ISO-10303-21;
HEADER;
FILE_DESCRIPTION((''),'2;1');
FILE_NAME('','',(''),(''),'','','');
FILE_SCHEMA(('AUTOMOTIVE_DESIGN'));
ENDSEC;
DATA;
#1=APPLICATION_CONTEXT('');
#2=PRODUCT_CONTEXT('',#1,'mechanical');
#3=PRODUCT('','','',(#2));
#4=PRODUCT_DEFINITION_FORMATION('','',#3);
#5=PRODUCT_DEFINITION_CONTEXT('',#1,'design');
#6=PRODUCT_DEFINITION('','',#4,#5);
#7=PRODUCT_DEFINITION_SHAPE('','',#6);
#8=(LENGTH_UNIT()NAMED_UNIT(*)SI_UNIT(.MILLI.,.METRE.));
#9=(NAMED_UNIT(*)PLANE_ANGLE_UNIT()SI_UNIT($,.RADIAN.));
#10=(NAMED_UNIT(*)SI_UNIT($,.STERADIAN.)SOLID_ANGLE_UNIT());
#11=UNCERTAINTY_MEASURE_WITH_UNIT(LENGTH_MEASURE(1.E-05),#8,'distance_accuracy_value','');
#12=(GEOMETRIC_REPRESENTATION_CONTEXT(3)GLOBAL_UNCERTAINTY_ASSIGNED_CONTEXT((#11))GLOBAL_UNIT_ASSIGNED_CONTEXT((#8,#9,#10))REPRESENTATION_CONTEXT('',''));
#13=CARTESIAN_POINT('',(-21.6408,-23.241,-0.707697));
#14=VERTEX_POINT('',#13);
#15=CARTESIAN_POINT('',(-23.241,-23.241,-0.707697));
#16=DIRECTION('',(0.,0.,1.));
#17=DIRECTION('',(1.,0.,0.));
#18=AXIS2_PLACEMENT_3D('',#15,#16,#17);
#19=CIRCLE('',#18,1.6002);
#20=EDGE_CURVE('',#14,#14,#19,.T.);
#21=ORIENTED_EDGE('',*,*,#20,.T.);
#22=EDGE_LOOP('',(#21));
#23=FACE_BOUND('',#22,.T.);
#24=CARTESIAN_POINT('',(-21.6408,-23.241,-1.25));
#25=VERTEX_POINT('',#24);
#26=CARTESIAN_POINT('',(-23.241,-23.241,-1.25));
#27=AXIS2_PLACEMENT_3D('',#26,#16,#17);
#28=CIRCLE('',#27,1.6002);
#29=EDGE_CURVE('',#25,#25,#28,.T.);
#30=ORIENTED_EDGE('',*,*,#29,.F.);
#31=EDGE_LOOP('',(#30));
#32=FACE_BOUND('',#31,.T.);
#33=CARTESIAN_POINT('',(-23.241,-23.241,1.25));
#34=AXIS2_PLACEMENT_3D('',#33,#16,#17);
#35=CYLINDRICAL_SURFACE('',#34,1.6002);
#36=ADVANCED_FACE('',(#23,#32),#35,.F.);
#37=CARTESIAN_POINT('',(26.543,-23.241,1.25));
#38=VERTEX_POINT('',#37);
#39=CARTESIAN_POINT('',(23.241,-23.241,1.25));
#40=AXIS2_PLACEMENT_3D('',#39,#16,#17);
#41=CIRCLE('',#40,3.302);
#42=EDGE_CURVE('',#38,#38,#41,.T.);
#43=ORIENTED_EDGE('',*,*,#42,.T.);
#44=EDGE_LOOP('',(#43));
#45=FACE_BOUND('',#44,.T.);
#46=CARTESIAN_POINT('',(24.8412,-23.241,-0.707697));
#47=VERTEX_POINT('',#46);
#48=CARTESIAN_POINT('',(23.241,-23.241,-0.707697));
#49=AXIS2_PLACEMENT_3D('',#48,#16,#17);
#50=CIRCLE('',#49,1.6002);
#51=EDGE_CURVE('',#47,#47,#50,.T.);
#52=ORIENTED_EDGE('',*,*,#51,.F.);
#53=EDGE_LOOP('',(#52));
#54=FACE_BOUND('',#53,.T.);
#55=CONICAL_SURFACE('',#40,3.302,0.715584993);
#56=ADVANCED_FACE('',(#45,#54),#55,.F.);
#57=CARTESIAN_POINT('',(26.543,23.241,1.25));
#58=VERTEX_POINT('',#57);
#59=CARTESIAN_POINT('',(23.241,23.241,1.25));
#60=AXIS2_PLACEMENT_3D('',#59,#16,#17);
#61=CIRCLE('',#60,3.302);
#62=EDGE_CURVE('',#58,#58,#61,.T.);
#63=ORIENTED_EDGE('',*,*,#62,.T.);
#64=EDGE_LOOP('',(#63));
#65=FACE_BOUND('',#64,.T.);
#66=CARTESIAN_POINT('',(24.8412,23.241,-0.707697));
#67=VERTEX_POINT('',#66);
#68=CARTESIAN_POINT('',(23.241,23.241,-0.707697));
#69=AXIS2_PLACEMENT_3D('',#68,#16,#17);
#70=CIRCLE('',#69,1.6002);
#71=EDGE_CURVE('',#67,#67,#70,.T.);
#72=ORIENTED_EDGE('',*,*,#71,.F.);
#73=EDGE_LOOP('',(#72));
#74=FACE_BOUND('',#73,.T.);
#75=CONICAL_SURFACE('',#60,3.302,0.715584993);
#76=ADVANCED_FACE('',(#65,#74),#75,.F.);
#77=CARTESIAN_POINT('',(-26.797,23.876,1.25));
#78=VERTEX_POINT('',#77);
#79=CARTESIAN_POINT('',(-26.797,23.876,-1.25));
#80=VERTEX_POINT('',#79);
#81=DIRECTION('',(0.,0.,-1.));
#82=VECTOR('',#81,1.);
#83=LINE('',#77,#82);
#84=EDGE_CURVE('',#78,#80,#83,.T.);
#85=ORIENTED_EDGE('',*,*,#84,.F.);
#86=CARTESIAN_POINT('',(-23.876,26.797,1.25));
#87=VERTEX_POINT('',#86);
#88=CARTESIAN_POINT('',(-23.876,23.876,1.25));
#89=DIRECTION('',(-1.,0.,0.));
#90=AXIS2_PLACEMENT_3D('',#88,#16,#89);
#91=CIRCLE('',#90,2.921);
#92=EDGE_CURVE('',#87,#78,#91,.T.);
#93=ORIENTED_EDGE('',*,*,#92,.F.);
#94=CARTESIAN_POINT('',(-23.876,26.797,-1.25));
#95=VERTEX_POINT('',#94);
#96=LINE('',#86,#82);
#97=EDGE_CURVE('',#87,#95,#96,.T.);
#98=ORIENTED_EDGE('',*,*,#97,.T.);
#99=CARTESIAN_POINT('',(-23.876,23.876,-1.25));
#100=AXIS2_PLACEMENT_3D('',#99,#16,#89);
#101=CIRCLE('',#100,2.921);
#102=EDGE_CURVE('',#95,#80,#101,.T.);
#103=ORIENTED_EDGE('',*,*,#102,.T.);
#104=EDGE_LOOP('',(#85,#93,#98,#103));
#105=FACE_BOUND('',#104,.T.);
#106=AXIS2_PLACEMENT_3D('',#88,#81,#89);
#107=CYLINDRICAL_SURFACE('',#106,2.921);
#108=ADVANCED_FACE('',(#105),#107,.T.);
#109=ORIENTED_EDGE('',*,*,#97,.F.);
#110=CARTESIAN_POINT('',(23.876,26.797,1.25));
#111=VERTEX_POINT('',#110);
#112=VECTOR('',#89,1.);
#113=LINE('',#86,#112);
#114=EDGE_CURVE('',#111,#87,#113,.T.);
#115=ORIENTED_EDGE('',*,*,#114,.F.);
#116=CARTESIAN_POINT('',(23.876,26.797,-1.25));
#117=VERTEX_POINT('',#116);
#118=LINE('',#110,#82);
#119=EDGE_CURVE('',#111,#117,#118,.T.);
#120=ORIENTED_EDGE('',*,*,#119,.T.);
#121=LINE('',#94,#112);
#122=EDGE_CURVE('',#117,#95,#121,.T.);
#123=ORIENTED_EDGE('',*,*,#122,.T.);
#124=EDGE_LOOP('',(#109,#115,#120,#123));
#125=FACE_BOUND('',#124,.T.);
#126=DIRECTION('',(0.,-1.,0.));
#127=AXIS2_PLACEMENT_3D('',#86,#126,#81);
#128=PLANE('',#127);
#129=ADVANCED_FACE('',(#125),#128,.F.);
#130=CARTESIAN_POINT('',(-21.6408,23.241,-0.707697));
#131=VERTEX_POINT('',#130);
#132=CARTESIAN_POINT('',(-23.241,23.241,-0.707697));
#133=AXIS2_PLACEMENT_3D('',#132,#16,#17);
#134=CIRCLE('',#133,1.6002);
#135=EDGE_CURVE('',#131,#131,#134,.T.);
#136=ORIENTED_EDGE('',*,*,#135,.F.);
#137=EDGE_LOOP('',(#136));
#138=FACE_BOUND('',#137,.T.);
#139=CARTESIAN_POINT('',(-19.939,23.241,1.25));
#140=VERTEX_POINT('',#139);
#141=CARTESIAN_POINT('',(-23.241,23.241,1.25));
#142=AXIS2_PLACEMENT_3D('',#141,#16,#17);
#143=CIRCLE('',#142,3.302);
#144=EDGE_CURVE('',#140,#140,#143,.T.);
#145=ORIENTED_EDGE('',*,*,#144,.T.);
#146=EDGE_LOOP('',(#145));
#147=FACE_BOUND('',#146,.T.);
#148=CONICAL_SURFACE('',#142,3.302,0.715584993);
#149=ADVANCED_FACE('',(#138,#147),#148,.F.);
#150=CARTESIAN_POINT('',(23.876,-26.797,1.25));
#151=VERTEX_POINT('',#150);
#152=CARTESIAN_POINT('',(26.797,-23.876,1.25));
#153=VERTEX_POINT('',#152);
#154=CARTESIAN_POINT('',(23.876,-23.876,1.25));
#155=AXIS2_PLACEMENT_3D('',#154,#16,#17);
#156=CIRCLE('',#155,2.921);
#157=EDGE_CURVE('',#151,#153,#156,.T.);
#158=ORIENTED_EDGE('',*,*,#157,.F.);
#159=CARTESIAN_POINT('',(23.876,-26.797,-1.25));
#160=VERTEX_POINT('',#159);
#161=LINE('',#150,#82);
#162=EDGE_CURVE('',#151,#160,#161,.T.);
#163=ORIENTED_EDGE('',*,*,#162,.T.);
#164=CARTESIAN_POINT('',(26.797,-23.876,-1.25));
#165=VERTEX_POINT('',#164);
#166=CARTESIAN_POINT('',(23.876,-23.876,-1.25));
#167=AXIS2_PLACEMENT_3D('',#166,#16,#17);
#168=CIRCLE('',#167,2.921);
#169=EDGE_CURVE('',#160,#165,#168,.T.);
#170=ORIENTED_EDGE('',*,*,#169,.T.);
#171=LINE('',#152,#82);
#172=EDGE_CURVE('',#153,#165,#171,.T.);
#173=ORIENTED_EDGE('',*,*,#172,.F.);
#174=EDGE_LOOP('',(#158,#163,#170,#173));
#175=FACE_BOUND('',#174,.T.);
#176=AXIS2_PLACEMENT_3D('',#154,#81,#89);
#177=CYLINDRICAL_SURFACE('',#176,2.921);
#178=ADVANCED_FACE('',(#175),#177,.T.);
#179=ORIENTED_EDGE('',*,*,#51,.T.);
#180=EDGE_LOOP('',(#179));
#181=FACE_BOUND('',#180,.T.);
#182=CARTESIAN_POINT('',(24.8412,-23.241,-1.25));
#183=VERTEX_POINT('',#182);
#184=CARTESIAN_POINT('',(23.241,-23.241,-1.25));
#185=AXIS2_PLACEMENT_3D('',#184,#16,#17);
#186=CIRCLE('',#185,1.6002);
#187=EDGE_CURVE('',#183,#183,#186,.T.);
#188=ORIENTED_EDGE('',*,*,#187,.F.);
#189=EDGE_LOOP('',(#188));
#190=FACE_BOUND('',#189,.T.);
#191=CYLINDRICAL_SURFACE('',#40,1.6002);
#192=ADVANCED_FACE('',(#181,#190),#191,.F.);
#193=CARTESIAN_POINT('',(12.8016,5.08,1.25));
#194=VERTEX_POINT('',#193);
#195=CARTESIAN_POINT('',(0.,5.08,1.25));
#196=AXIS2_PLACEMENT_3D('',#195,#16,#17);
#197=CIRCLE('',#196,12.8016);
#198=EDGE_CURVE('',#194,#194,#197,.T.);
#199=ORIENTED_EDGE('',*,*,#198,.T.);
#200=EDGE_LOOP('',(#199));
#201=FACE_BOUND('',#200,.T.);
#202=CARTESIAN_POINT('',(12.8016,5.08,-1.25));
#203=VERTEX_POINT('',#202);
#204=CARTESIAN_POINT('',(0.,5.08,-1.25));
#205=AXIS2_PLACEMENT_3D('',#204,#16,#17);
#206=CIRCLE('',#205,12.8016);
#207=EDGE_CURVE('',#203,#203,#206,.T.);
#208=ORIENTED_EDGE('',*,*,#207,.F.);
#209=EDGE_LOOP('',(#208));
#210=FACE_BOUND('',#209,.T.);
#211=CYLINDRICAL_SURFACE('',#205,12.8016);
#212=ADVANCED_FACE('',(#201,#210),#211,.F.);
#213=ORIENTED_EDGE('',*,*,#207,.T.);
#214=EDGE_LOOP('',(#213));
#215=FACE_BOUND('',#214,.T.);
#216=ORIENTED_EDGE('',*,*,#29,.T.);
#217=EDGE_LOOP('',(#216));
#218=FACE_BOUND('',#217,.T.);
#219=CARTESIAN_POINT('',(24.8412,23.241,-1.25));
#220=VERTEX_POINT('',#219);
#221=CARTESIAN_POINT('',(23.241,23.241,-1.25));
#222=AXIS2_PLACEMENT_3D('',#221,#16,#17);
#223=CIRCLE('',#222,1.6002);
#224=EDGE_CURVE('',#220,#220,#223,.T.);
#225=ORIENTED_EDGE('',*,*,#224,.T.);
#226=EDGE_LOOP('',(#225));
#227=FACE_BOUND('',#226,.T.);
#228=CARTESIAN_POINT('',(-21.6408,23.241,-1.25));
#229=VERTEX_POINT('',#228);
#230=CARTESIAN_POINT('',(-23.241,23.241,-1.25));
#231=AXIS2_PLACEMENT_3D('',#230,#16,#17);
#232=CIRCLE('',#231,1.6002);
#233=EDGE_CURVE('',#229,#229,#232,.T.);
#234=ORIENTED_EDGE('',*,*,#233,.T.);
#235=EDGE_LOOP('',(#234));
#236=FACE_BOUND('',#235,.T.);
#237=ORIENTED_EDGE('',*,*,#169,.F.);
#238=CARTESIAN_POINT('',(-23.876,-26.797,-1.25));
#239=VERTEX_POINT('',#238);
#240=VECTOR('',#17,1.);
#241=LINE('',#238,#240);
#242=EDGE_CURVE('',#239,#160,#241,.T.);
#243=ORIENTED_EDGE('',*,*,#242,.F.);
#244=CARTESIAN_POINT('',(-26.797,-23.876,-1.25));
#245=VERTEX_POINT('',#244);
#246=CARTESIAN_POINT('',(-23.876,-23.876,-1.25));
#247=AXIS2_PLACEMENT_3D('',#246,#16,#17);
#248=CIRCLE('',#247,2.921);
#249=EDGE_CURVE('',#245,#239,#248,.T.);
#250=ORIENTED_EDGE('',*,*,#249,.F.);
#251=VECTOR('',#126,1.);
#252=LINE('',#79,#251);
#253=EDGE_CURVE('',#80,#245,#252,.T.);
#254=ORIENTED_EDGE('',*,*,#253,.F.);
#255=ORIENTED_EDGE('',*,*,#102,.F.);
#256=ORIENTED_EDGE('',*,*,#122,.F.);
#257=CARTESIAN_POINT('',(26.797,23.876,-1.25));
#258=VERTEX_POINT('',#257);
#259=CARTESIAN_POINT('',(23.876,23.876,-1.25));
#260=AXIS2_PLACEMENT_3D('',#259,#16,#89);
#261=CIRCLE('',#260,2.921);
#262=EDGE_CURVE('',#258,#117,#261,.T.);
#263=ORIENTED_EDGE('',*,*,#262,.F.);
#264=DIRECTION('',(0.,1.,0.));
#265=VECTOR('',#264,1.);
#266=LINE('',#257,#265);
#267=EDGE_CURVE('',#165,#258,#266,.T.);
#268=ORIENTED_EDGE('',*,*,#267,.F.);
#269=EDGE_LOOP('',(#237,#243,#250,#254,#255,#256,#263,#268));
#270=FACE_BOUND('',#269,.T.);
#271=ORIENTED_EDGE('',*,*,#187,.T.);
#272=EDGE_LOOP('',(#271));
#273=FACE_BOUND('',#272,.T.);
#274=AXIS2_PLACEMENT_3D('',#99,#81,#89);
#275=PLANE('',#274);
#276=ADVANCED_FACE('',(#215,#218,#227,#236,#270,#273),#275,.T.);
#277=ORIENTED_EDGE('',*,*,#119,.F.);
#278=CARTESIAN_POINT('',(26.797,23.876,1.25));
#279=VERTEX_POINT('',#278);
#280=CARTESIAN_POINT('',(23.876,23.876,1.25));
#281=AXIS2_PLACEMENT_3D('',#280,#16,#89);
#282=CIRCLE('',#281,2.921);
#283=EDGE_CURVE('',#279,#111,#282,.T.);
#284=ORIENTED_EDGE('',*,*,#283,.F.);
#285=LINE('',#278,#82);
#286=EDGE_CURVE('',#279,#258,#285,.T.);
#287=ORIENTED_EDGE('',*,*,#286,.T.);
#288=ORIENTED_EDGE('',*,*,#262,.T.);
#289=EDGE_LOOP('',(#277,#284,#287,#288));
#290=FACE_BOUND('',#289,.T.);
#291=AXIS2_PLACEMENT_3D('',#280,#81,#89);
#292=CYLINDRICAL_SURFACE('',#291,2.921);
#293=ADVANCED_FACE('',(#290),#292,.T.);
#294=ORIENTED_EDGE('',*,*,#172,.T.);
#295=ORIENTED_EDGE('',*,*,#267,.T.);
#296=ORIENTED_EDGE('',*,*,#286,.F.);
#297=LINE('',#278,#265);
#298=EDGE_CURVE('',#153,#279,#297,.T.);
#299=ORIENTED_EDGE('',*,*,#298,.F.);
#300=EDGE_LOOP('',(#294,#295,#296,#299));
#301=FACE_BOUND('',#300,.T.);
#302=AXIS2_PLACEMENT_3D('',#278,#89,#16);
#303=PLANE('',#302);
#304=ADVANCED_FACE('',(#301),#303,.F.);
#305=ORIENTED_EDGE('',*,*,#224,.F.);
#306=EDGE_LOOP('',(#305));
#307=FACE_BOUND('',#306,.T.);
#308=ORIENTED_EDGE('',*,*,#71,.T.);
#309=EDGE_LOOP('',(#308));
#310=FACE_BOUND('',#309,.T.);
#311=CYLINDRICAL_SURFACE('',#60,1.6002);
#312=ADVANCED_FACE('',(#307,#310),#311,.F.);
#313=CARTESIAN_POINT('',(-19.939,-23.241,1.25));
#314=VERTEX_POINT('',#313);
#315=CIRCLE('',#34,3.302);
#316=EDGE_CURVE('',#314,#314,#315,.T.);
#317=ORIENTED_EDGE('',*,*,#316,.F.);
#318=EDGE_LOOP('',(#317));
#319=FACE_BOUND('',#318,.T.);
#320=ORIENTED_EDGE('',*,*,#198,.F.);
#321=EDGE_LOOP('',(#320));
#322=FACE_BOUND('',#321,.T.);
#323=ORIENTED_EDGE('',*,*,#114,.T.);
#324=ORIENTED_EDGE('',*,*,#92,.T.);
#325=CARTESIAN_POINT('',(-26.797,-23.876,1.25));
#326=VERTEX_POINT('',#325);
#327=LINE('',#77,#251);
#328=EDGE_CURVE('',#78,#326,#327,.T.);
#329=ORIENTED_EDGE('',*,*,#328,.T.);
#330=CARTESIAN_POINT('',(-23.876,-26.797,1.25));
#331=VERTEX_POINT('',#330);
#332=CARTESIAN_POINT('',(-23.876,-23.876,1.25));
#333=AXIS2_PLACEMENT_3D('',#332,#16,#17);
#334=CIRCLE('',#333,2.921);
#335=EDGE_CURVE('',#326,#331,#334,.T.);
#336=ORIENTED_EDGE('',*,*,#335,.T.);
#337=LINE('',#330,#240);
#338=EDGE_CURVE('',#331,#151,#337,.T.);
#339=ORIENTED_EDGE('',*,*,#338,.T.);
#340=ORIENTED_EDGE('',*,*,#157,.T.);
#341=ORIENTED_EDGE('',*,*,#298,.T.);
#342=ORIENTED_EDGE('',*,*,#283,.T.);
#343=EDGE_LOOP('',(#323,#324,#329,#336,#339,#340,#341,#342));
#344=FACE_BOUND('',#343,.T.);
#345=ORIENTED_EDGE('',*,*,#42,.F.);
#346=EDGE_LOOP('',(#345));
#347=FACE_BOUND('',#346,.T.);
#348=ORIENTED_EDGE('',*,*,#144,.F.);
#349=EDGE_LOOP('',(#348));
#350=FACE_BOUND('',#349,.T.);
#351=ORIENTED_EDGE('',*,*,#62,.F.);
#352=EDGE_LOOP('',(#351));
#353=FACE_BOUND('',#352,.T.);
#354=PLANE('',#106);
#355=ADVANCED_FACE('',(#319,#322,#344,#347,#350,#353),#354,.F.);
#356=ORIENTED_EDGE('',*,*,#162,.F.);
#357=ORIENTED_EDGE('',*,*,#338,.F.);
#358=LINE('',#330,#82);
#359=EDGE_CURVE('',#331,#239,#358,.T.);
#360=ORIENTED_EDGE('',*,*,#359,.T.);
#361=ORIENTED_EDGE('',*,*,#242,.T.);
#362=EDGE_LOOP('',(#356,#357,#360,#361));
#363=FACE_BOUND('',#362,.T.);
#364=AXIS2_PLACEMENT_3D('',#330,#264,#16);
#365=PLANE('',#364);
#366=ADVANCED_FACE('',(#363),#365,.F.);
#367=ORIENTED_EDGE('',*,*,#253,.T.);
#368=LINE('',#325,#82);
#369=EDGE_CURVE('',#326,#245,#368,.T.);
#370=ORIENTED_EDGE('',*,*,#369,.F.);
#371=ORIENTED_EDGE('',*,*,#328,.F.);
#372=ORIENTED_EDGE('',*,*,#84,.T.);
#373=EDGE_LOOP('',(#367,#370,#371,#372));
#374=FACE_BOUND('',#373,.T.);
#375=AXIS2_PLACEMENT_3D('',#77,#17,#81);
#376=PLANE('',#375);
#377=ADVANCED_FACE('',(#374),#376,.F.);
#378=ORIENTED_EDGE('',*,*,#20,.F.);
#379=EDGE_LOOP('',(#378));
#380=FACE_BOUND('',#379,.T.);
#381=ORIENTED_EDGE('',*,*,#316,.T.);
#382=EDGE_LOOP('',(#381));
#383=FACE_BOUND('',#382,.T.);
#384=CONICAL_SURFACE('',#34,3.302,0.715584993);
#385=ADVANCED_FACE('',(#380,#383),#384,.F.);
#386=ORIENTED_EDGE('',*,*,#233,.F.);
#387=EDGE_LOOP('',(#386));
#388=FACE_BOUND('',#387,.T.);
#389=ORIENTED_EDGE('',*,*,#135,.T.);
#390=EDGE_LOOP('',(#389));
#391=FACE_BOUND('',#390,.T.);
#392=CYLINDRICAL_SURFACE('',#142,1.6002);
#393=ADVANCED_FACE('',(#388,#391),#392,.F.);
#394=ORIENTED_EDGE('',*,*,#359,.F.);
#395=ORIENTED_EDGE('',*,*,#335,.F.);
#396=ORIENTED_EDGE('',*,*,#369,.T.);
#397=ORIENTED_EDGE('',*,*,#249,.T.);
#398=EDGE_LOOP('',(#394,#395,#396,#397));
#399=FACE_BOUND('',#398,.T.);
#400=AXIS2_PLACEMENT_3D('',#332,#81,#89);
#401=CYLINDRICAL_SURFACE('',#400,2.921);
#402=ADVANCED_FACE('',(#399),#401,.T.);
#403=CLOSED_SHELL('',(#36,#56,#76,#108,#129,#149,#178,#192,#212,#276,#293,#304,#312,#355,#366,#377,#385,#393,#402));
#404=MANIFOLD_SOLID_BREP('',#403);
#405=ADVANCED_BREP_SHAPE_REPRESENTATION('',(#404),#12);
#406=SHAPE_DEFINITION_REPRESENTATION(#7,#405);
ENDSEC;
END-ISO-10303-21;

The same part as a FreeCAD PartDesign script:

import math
import FreeCAD as App
import Part
import Sketcher
Q = App.Units.Quantity

doc = App.newDocument("Part")
body = doc.addObject("PartDesign::Body", "Body")

# Sketch on XY plane
sketch1 = body.newObject("Sketcher::SketchObject", "Sketch")
sketch1.AttachmentSupport = (doc.getObject("XY_Plane"), [""])
sketch1.MapMode = "FlatFace"
sketch1.addGeometry(Part.LineSegment(App.Vector(23.9, 26.8, 0), App.Vector(-23.9, 26.8, 0)), False)
sketch1.addGeometry(Part.ArcOfCircle(Part.Circle(App.Vector(-23.9, 23.9, 0), App.Vector(0, 0, 1), 2.9), math.radians(90), math.radians(180)), False)
sketch1.addGeometry(Part.LineSegment(App.Vector(-26.8, 23.9, 0), App.Vector(-26.8, -23.9, 0)), False)
sketch1.addGeometry(Part.ArcOfCircle(Part.Circle(App.Vector(-23.9, -23.9, 0), App.Vector(0, 0, 1), 2.9), math.radians(180), math.radians(270)), False)
sketch1.addGeometry(Part.LineSegment(App.Vector(-23.9, -26.8, 0), App.Vector(23.9, -26.8, 0)), False)
sketch1.addGeometry(Part.ArcOfCircle(Part.Circle(App.Vector(23.9, -23.9, 0), App.Vector(0, 0, 1), 2.9), math.radians(-90), math.radians(0)), False)
sketch1.addGeometry(Part.LineSegment(App.Vector(26.8, -23.9, 0), App.Vector(26.8, 23.9, 0)), False)
sketch1.addGeometry(Part.ArcOfCircle(Part.Circle(App.Vector(23.9, 23.9, 0), App.Vector(0, 0, 1), 2.9), math.radians(0), math.radians(90)), False)
sketch1.addConstraint(Sketcher.Constraint("Tangent", 0, 2, 1, 1))
sketch1.addConstraint(Sketcher.Constraint("Tangent", 1, 2, 2, 1))
sketch1.addConstraint(Sketcher.Constraint("Tangent", 2, 2, 3, 1))
sketch1.addConstraint(Sketcher.Constraint("Tangent", 3, 2, 4, 1))
sketch1.addConstraint(Sketcher.Constraint("Tangent", 4, 2, 5, 1))
sketch1.addConstraint(Sketcher.Constraint("Tangent", 5, 2, 6, 1))
sketch1.addConstraint(Sketcher.Constraint("Tangent", 6, 2, 7, 1))
sketch1.addConstraint(Sketcher.Constraint("Tangent", 7, 2, 0, 1))
sketch1.addConstraint(Sketcher.Constraint("Horizontal", 0))
sketch1.addConstraint(Sketcher.Constraint("Vertical", 2))
sketch1.addConstraint(Sketcher.Constraint("Horizontal", 4))
sketch1.addConstraint(Sketcher.Constraint("Vertical", 6))
sketch1.addConstraint(Sketcher.Constraint("Equal", 1, 3))
sketch1.addConstraint(Sketcher.Constraint("Equal", 3, 5))
sketch1.addConstraint(Sketcher.Constraint("Equal", 5, 7))
sketch1.addConstraint(Sketcher.Constraint("Symmetric", 1, 3, 5, 3, -1, 1))
sketch1.addConstraint(Sketcher.Constraint("Equal", 4, 2))
sketch1.addConstraint(Sketcher.Constraint("Radius", 1, Q("0.115 in")))
sketch1.addConstraint(Sketcher.Constraint("DistanceX", 0, 2, 0, 1, Q("1.88 in")))
pad1 = body.newObject("PartDesign::Pad", "Pad")
pad1.Profile = sketch1
pad1.Length = 2.5
pad1.Midplane = True

# Sketch on YZ plane
sketch2 = body.newObject("Sketcher::SketchObject", "Sketch001")
sketch2.AttachmentSupport = (doc.getObject("YZ_Plane"), [""])
sketch2.MapMode = "FlatFace"
sketch2.AttachmentOffset = App.Placement(App.Vector(0, 0, -0.915 * 25.4), App.Rotation())
sketch2.addGeometry(Part.LineSegment(App.Vector(23.2, -1.2, 0), App.Vector(23.2, 1.2, 0)), False)
sketch2.addGeometry(Part.LineSegment(App.Vector(23.2, 1.2, 0), App.Vector(19.9, 1.2, 0)), False)
sketch2.addGeometry(Part.LineSegment(App.Vector(19.9, 1.2, 0), App.Vector(21.6, -0.7, 0)), False)
sketch2.addGeometry(Part.LineSegment(App.Vector(21.6, -0.7, 0), App.Vector(21.6, -1.2, 0)), False)
sketch2.addGeometry(Part.LineSegment(App.Vector(21.6, -1.2, 0), App.Vector(23.2, -1.2, 0)), False)
sketch2.addGeometry(Part.LineSegment(App.Vector(23.2, 1.2, 0), App.Vector(23.2, -1.2, 0)), True)  # axis
sketch2.addConstraint(Sketcher.Constraint("Coincident", 0, 2, 1, 1))
sketch2.addConstraint(Sketcher.Constraint("Coincident", 1, 2, 2, 1))
sketch2.addConstraint(Sketcher.Constraint("Coincident", 2, 2, 3, 1))
sketch2.addConstraint(Sketcher.Constraint("Coincident", 3, 2, 4, 1))
sketch2.addConstraint(Sketcher.Constraint("Coincident", 4, 2, 0, 1))
sketch2.addConstraint(Sketcher.Constraint("Vertical", 0))
sketch2.addConstraint(Sketcher.Constraint("Horizontal", 1))
sketch2.addConstraint(Sketcher.Constraint("Vertical", 3))
sketch2.addConstraint(Sketcher.Constraint("Horizontal", 4))
sketch2.addConstraint(Sketcher.Constraint("Vertical", 5))
sketch2.addConstraint(Sketcher.Constraint("Coincident", 5, 1, 0, 2))
sketch2.addConstraint(Sketcher.Constraint("Horizontal", 3, 2, 5, 2))
sketch2.addConstraint(Sketcher.Constraint("Angle", 2, Q("-49 deg")))
sketch2.addConstraint(Sketcher.Constraint("DistanceX", 1, 2, 1, 1, Q("0.13 in")))
sketch2.addConstraint(Sketcher.Constraint("DistanceX", 4, 1, 4, 2, Q("0.063 in")))
sketch2.addConstraint(Sketcher.Constraint("DistanceX", -1, 1, 0, 2, Q("0.915 in")))
sketch2.addConstraint(Sketcher.Constraint("DistanceY", 0, 1, 0, 2, Q("2.5 mm")))
sketch2.addConstraint(Sketcher.Constraint("DistanceY", -1, 1, 0, 2, Q("1.25 mm")))
groove = body.newObject("PartDesign::Groove", "Groove")
groove.Profile = sketch2
groove.ReferenceAxis = (sketch2, ["Axis0"])
groove.Angle = 360
doc.recompute()

datumline = body.newObject("PartDesign::Line", "DatumLine")
datumline.Placement = App.Placement(App.Vector(0, 0, 0), App.Rotation(App.Vector(0, 0, 1), App.Vector(0.707106781, -0.707106781, 0)))
linearpattern = body.newObject("PartDesign::LinearPattern", "LinearPattern")
linearpattern.Originals = [groove]
linearpattern.Direction = (datumline, [""])
linearpattern.Mode = "offset"
linearpattern.Offset = 65.735475
linearpattern.Occurrences = 2
body.Tip = linearpattern
doc.recompute()

linearpattern2 = body.newObject("PartDesign::LinearPattern", "LinearPattern001")
linearpattern2.Originals = [groove]
linearpattern2.Direction = (doc.getObject("X_Axis"), [""])
linearpattern2.Mode = "offset"
linearpattern2.Offset = Q("1.83 in")
linearpattern2.Occurrences = 2
body.Tip = linearpattern2
doc.recompute()

linearpattern3 = body.newObject("PartDesign::LinearPattern", "LinearPattern002")
linearpattern3.Originals = [groove]
linearpattern3.Direction = (doc.getObject("Y_Axis"), [""])
linearpattern3.Mode = "offset"
linearpattern3.Offset = Q("1.83 in")
linearpattern3.Occurrences = 2
linearpattern3.Reversed = True
body.Tip = linearpattern3

# Sketch on XY plane
sketch3 = body.newObject("Sketcher::SketchObject", "Sketch002")
sketch3.AttachmentSupport = (doc.getObject("XY_Plane"), [""])
sketch3.MapMode = "FlatFace"
sketch3.AttachmentOffset = App.Placement(App.Vector(0, 0, 1.25), App.Rotation())
sketch3.addGeometry(Part.Circle(App.Vector(0, 5, 0), App.Vector(0, 0, 1), 13), False)
sketch3.addConstraint(Sketcher.Constraint("PointOnObject", 0, 3, -2))
sketch3.addConstraint(Sketcher.Constraint("Diameter", 0, Q("1.008 in")))
sketch3.addConstraint(Sketcher.Constraint("DistanceY", -1, 1, 0, 3, Q("0.2 in")))
pocket1 = body.newObject("PartDesign::Pocket", "Pocket")
pocket1.Profile = sketch3
pocket1.Type = "ThroughAll"

doc.recompute()
